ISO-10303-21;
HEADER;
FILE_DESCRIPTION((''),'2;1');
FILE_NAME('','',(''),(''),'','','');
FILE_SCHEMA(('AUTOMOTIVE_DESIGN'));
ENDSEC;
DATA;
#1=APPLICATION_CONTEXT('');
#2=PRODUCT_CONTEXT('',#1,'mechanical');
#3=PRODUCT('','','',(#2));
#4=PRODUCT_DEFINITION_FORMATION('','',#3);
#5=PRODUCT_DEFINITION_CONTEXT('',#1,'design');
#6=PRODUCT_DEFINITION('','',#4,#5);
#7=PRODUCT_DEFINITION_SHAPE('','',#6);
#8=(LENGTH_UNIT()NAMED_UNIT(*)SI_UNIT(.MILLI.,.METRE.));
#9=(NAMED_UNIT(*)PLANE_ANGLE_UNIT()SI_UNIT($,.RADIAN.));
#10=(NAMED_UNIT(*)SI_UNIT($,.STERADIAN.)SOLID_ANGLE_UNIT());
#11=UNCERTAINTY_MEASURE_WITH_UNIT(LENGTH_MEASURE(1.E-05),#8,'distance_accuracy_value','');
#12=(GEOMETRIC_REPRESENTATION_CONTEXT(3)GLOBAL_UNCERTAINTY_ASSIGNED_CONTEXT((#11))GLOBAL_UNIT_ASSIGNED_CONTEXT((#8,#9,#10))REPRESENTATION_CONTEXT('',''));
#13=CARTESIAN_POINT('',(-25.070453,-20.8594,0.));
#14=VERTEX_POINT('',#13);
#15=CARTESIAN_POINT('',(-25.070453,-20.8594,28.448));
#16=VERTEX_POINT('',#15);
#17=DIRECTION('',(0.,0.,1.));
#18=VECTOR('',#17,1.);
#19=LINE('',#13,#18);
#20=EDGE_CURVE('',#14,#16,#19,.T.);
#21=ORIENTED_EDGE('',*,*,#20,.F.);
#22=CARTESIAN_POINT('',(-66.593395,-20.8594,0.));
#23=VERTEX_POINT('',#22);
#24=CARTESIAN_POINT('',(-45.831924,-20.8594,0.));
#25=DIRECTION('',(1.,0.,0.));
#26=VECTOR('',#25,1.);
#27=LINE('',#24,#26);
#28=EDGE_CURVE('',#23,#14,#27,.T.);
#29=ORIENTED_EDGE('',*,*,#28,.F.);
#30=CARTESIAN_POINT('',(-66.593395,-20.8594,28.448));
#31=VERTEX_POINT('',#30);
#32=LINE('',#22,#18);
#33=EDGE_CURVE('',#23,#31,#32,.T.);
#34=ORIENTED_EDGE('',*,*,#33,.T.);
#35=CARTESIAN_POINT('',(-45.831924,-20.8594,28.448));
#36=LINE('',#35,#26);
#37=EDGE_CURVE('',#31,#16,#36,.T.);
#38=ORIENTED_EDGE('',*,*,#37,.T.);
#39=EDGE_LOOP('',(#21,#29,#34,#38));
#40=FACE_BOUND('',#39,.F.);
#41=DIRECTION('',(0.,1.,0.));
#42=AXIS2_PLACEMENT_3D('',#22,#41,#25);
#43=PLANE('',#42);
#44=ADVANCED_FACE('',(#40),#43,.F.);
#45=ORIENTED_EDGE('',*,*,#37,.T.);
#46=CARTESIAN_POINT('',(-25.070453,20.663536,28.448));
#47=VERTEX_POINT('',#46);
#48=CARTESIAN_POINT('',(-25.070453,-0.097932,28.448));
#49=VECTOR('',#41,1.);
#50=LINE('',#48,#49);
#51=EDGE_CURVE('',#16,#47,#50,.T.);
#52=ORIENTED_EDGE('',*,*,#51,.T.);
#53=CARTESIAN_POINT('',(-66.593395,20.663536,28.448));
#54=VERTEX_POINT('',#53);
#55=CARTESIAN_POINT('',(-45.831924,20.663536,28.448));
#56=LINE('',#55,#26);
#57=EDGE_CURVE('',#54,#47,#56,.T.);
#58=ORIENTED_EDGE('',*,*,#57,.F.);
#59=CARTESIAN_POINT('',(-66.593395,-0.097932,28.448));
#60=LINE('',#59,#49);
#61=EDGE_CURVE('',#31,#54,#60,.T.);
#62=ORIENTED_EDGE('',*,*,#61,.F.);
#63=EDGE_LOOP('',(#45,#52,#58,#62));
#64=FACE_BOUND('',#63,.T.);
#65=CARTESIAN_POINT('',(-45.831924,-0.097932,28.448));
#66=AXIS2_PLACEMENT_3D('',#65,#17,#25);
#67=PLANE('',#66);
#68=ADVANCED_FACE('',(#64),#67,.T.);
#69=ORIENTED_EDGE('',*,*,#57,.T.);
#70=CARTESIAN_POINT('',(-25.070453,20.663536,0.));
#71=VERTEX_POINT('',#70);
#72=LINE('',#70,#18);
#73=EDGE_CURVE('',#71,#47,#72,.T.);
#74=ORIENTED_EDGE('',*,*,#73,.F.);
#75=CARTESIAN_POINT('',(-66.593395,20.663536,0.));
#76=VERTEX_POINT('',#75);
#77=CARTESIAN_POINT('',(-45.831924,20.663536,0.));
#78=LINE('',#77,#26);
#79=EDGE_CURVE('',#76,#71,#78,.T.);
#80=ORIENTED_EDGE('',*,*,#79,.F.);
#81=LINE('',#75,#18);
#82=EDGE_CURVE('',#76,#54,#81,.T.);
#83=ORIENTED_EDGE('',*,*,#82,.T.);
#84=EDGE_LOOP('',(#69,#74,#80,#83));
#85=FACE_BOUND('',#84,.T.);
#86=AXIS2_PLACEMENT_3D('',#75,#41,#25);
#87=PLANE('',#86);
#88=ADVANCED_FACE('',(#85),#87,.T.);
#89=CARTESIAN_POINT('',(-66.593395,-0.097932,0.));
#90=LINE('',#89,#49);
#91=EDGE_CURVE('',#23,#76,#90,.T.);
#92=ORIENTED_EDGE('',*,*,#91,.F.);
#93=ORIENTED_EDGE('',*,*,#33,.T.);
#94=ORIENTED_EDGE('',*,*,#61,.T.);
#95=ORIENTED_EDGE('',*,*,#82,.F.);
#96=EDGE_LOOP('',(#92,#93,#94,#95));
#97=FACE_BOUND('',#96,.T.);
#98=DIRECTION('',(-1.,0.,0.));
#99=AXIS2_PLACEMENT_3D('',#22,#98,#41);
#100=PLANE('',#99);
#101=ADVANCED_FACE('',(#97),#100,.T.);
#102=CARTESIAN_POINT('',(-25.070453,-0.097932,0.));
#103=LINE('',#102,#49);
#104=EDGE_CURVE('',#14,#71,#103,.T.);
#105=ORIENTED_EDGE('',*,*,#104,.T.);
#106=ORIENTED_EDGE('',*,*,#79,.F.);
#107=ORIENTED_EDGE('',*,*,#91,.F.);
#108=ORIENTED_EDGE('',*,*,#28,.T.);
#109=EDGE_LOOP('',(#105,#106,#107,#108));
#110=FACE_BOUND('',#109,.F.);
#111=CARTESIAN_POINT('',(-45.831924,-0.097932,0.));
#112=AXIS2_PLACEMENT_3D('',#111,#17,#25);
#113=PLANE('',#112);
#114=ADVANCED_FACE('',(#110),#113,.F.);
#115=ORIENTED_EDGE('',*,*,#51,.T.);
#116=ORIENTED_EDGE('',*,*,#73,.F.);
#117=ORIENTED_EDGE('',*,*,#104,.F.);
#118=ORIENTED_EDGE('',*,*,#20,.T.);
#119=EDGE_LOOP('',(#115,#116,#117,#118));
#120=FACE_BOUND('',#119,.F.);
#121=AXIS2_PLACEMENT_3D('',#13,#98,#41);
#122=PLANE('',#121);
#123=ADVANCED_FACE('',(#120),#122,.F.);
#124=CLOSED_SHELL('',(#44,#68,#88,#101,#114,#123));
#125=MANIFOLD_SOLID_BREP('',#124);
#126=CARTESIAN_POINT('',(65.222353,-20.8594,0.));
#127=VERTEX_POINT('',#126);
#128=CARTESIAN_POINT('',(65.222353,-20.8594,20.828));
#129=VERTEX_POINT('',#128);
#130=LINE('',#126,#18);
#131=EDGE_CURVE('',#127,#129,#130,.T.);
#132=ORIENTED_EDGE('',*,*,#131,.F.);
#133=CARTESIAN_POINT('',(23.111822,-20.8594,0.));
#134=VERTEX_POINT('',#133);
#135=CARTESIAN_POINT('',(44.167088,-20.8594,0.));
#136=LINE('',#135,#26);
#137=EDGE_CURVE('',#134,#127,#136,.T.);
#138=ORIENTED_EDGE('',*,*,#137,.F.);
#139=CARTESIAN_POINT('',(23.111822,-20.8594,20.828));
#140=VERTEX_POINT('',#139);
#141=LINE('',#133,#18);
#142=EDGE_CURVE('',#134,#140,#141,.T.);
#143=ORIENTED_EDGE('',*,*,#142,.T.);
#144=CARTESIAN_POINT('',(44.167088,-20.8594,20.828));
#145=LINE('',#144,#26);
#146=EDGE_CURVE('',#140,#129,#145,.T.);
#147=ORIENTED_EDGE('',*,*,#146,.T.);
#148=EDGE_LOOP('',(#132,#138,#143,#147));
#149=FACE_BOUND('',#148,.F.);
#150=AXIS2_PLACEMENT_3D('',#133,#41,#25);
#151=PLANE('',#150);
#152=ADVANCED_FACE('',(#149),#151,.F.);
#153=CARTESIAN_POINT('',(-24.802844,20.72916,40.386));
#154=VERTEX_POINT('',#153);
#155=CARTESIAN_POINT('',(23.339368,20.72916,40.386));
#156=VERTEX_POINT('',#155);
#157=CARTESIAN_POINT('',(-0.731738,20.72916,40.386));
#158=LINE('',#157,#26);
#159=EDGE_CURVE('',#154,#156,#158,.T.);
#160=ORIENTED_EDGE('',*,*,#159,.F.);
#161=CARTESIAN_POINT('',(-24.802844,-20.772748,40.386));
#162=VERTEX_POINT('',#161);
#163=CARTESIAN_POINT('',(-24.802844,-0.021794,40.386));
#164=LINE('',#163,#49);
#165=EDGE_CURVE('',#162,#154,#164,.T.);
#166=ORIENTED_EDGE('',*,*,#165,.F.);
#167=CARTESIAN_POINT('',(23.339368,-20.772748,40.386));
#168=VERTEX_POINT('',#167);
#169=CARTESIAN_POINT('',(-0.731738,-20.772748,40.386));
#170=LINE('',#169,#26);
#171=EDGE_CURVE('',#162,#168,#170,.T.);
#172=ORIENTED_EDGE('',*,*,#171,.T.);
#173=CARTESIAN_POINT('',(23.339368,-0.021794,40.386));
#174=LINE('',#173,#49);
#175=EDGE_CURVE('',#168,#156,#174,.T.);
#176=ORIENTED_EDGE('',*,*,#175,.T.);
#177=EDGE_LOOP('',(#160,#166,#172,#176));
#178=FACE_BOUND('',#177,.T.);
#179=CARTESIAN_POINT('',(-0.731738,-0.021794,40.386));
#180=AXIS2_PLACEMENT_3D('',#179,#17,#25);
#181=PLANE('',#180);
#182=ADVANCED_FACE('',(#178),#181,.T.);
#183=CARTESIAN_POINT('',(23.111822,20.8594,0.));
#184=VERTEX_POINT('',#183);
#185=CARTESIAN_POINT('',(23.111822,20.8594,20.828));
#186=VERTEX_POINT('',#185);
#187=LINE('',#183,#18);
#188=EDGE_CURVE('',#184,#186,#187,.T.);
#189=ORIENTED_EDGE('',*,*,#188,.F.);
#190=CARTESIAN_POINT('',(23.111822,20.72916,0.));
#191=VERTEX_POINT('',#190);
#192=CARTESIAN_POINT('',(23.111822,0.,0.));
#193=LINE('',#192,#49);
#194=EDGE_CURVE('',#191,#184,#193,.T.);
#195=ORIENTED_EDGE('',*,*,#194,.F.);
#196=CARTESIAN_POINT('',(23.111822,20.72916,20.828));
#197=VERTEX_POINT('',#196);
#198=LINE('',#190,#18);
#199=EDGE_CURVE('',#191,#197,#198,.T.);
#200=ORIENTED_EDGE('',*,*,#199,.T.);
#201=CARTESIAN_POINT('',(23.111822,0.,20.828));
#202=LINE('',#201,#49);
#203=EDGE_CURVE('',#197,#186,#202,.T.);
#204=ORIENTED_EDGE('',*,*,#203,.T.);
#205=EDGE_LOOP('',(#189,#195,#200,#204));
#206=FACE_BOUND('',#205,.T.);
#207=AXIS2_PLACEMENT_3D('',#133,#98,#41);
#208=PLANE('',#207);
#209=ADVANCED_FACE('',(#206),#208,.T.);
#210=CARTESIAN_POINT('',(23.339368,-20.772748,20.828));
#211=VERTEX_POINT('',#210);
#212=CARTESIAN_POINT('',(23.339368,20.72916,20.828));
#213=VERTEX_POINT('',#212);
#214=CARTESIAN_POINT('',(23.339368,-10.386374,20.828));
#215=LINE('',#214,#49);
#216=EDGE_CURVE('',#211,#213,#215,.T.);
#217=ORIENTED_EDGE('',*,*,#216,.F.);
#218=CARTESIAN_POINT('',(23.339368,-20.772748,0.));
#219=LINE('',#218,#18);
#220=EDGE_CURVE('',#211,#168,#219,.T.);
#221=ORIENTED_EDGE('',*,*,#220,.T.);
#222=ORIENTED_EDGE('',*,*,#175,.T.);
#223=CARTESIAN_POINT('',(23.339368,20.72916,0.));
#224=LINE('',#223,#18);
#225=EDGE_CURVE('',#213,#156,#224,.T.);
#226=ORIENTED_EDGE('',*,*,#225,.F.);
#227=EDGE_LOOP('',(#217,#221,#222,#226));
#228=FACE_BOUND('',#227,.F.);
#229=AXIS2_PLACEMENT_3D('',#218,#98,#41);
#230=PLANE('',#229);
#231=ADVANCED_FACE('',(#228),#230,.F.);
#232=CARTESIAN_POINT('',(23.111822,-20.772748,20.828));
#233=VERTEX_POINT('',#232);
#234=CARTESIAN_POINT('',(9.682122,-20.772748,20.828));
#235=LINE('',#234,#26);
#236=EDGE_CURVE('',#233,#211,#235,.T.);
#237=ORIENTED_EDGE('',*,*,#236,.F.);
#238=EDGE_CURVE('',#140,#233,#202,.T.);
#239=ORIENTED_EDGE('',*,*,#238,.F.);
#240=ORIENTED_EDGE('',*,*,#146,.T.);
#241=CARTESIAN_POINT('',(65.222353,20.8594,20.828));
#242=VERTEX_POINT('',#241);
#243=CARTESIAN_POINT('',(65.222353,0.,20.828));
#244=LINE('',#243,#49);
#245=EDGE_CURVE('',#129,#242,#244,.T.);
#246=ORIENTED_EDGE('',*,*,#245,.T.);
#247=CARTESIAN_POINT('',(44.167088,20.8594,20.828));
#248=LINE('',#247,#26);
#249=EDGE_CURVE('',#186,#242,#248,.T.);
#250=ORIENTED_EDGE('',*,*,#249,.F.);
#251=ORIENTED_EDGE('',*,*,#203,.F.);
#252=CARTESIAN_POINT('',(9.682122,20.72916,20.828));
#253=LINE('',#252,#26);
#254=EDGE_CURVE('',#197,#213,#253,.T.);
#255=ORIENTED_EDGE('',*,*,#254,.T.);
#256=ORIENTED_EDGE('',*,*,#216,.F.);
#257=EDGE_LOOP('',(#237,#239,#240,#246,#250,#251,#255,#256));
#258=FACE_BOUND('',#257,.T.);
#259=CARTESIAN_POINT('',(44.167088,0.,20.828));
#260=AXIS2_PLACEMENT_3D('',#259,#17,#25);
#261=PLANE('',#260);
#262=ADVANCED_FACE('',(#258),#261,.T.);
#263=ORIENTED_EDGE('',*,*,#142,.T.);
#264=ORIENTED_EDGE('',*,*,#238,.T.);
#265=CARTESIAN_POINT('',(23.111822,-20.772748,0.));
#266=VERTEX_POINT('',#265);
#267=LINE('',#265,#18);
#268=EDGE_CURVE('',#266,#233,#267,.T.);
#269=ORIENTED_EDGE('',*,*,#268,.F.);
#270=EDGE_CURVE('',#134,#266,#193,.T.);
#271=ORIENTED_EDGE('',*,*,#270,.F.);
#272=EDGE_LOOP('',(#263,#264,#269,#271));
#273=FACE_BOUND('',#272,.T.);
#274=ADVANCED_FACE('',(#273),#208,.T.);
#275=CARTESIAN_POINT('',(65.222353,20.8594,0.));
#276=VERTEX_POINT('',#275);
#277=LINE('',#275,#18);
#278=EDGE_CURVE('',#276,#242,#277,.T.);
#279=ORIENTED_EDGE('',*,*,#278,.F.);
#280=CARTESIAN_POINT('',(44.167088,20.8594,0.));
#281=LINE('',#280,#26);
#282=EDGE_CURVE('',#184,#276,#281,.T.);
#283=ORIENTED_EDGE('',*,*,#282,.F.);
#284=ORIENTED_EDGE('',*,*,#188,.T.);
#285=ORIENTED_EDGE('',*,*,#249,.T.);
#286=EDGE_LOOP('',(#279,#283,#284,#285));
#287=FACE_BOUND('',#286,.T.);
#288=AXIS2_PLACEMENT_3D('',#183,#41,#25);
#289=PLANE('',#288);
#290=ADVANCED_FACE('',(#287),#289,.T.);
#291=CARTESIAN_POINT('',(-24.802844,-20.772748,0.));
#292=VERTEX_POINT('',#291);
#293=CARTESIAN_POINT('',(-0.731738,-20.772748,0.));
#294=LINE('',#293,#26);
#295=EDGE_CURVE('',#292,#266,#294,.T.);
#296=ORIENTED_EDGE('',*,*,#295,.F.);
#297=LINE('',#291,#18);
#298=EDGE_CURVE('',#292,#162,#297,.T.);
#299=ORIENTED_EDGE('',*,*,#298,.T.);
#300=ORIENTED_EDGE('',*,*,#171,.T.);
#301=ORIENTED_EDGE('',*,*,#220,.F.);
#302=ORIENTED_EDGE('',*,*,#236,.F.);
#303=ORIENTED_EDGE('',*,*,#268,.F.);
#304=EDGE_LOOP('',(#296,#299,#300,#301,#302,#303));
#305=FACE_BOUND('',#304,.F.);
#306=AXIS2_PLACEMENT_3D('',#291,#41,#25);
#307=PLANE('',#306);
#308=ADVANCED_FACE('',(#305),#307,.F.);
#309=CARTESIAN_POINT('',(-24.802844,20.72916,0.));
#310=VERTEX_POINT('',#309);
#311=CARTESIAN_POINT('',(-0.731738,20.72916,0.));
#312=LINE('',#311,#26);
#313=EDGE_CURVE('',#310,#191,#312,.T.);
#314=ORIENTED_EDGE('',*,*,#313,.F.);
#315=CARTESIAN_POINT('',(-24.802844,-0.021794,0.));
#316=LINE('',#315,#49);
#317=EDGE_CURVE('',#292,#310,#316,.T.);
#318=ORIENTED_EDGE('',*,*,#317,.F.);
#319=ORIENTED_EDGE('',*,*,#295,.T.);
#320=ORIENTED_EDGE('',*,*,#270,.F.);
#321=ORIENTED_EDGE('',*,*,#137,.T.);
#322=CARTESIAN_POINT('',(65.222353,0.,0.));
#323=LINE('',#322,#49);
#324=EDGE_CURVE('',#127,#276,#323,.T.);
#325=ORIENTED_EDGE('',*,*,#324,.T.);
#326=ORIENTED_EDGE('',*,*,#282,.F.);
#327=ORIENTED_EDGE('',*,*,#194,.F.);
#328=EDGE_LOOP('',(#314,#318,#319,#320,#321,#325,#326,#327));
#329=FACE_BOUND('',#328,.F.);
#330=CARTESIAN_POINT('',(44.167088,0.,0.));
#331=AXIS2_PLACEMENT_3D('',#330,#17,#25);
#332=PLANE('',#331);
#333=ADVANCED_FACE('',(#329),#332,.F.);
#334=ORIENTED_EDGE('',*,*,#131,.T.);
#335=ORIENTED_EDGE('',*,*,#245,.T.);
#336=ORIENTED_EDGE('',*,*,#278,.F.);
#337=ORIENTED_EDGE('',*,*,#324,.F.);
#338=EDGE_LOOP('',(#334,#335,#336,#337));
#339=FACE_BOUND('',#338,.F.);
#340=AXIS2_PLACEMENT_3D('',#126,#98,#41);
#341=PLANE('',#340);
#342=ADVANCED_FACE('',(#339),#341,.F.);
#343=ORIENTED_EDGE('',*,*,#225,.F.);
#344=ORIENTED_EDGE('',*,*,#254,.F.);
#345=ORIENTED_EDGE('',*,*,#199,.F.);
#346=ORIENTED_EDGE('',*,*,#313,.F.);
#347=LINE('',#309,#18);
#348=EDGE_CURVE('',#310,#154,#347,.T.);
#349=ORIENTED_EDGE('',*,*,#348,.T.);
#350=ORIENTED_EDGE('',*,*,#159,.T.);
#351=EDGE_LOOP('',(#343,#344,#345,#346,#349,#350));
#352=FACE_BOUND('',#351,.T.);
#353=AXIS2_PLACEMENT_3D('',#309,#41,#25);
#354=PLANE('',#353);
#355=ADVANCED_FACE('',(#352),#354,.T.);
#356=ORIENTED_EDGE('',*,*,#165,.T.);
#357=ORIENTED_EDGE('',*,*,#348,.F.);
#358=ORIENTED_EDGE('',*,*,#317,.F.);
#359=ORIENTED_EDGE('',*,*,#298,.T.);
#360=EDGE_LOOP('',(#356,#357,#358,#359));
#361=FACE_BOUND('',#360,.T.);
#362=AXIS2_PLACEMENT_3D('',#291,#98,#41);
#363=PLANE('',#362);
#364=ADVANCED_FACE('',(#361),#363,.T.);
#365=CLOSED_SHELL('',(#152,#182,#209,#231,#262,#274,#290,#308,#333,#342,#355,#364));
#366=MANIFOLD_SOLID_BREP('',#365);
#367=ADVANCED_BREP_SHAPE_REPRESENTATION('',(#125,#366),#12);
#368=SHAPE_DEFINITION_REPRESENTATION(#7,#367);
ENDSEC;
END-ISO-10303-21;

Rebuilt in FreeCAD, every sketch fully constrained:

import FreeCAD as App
import Part
import Sketcher
from FreeCAD import Vector
Q = App.Units.Quantity

doc = App.newDocument("Part")
params = doc.addObject("Spreadsheet::Sheet", "Params")
for row, (alias, value) in enumerate([
    ("pad1_length", "1.59 in"),
    ("pad2_length", "0.82 in"),
    ("pad3_length", "1.12 in"),
], start=1):
    params.set(f"A{row}", alias)
    params.set(f"B{row}", "=" + value)
    params.setAlias(f"B{row}", alias)

body = doc.addObject("PartDesign::Body", "Body")

sketch1 = body.newObject("Sketcher::SketchObject", "Sketch")
sketch1.AttachmentSupport = (doc.getObject("XY_Plane"), [""])
sketch1.MapMode = "FlatFace"
sketch1.addGeometry(Part.LineSegment(Vector(-25, 21, 0), Vector(-25, -21, 0)), False)
sketch1.addGeometry(Part.LineSegment(Vector(-25, -21, 0), Vector(23, -21, 0)), False)
sketch1.addGeometry(Part.LineSegment(Vector(23, -21, 0), Vector(23, 21, 0)), False)
sketch1.addGeometry(Part.LineSegment(Vector(23, 21, 0), Vector(-25, 21, 0)), False)
sketch1.addConstraint(Sketcher.Constraint("Coincident", 0, 2, 1, 1))
sketch1.addConstraint(Sketcher.Constraint("Coincident", 1, 2, 2, 1))
sketch1.addConstraint(Sketcher.Constraint("Coincident", 2, 2, 3, 1))
sketch1.addConstraint(Sketcher.Constraint("Coincident", 3, 2, 0, 1))
sketch1.addConstraint(Sketcher.Constraint("Vertical", 0))
sketch1.addConstraint(Sketcher.Constraint("Horizontal", 1))
sketch1.addConstraint(Sketcher.Constraint("Vertical", 2))
sketch1.addConstraint(Sketcher.Constraint("Horizontal", 3))
sketch1.addConstraint(Sketcher.Constraint("DistanceX", 1, 1, 1, 2, Q("48.142213 mm")))
sketch1.addConstraint(Sketcher.Constraint("DistanceY", 0, 2, 0, 1, Q("41.501908 mm")))
sketch1.addConstraint(Sketcher.Constraint("DistanceY", 0, 2, -1, 1, Q("20.772748 mm")))
sketch1.addConstraint(Sketcher.Constraint("DistanceX", -1, 1, 1, 2, Q("23.339368 mm")))
pad1 = body.newObject("PartDesign::Pad", "Pad")
pad1.Profile = sketch1
pad1.setExpression("Length", "Params.pad1_length")

sketch2 = body.newObject("Sketcher::SketchObject", "Sketch001")
sketch2.AttachmentSupport = (doc.getObject("XY_Plane"), [""])
sketch2.MapMode = "FlatFace"
sketch2.addGeometry(Part.LineSegment(Vector(23, 21, 0), Vector(23, -21, 0)), False)
sketch2.addGeometry(Part.LineSegment(Vector(23, -21, 0), Vector(65, -21, 0)), False)
sketch2.addGeometry(Part.LineSegment(Vector(65, -21, 0), Vector(65, 21, 0)), False)
sketch2.addGeometry(Part.LineSegment(Vector(65, 21, 0), Vector(23, 21, 0)), False)
sketch2.addConstraint(Sketcher.Constraint("Coincident", 0, 2, 1, 1))
sketch2.addConstraint(Sketcher.Constraint("Coincident", 1, 2, 2, 1))
sketch2.addConstraint(Sketcher.Constraint("Coincident", 2, 2, 3, 1))
sketch2.addConstraint(Sketcher.Constraint("Coincident", 3, 2, 0, 1))
sketch2.addConstraint(Sketcher.Constraint("Vertical", 0))
sketch2.addConstraint(Sketcher.Constraint("Horizontal", 1))
sketch2.addConstraint(Sketcher.Constraint("Vertical", 2))
sketch2.addConstraint(Sketcher.Constraint("Horizontal", 3))
sketch2.addConstraint(Sketcher.Constraint("DistanceY", 0, 2, 0, 1, Q("41.7188 mm")))
sketch2.addConstraint(Sketcher.Constraint("DistanceX", 1, 1, 1, 2, Q("42.110531 mm")))
sketch2.addConstraint(Sketcher.Constraint("DistanceY", 0, 2, -1, 1, Q("20.8594 mm")))
sketch2.addConstraint(Sketcher.Constraint("DistanceX", -1, 1, 0, 2, Q("23.111822 mm")))
pad2 = body.newObject("PartDesign::Pad", "Pad001")
pad2.Profile = sketch2
pad2.setExpression("Length", "Params.pad2_length")
body2 = doc.addObject("PartDesign::Body", "Body001")

sketch3 = body2.newObject("Sketcher::SketchObject", "Sketch002")
sketch3.AttachmentSupport = (doc.getObject("XY_Plane001"), [""])
sketch3.MapMode = "FlatFace"
sketch3.addGeometry(Part.LineSegment(Vector(-67, 21, 0), Vector(-67, -21, 0)), False)
sketch3.addGeometry(Part.LineSegment(Vector(-67, -21, 0), Vector(-25, -21, 0)), False)
sketch3.addGeometry(Part.LineSegment(Vector(-25, -21, 0), Vector(-25, 21, 0)), False)
sketch3.addGeometry(Part.LineSegment(Vector(-25, 21, 0), Vector(-67, 21, 0)), False)
sketch3.addConstraint(Sketcher.Constraint("Coincident", 0, 2, 1, 1))
sketch3.addConstraint(Sketcher.Constraint("Coincident", 1, 2, 2, 1))
sketch3.addConstraint(Sketcher.Constraint("Coincident", 2, 2, 3, 1))
sketch3.addConstraint(Sketcher.Constraint("Coincident", 3, 2, 0, 1))
sketch3.addConstraint(Sketcher.Constraint("Vertical", 0))
sketch3.addConstraint(Sketcher.Constraint("Horizontal", 1))
sketch3.addConstraint(Sketcher.Constraint("Vertical", 2))
sketch3.addConstraint(Sketcher.Constraint("Horizontal", 3))
sketch3.addConstraint(Sketcher.Constraint("DistanceX", 1, 1, 1, 2, Q("41.522941 mm")))
sketch3.addConstraint(Sketcher.Constraint("DistanceY", 0, 2, -1, 1, Q("20.8594 mm")))
sketch3.addConstraint(Sketcher.Constraint("DistanceY", 0, 2, 0, 1, Q("41.522937 mm")))
sketch3.addConstraint(Sketcher.Constraint("DistanceX", 0, 2, -1, 1, Q("66.593395 mm")))
pad3 = body2.newObject("PartDesign::Pad", "Pad002")
pad3.Profile = sketch3
pad3.setExpression("Length", "Params.pad3_length")

doc.recompute()
